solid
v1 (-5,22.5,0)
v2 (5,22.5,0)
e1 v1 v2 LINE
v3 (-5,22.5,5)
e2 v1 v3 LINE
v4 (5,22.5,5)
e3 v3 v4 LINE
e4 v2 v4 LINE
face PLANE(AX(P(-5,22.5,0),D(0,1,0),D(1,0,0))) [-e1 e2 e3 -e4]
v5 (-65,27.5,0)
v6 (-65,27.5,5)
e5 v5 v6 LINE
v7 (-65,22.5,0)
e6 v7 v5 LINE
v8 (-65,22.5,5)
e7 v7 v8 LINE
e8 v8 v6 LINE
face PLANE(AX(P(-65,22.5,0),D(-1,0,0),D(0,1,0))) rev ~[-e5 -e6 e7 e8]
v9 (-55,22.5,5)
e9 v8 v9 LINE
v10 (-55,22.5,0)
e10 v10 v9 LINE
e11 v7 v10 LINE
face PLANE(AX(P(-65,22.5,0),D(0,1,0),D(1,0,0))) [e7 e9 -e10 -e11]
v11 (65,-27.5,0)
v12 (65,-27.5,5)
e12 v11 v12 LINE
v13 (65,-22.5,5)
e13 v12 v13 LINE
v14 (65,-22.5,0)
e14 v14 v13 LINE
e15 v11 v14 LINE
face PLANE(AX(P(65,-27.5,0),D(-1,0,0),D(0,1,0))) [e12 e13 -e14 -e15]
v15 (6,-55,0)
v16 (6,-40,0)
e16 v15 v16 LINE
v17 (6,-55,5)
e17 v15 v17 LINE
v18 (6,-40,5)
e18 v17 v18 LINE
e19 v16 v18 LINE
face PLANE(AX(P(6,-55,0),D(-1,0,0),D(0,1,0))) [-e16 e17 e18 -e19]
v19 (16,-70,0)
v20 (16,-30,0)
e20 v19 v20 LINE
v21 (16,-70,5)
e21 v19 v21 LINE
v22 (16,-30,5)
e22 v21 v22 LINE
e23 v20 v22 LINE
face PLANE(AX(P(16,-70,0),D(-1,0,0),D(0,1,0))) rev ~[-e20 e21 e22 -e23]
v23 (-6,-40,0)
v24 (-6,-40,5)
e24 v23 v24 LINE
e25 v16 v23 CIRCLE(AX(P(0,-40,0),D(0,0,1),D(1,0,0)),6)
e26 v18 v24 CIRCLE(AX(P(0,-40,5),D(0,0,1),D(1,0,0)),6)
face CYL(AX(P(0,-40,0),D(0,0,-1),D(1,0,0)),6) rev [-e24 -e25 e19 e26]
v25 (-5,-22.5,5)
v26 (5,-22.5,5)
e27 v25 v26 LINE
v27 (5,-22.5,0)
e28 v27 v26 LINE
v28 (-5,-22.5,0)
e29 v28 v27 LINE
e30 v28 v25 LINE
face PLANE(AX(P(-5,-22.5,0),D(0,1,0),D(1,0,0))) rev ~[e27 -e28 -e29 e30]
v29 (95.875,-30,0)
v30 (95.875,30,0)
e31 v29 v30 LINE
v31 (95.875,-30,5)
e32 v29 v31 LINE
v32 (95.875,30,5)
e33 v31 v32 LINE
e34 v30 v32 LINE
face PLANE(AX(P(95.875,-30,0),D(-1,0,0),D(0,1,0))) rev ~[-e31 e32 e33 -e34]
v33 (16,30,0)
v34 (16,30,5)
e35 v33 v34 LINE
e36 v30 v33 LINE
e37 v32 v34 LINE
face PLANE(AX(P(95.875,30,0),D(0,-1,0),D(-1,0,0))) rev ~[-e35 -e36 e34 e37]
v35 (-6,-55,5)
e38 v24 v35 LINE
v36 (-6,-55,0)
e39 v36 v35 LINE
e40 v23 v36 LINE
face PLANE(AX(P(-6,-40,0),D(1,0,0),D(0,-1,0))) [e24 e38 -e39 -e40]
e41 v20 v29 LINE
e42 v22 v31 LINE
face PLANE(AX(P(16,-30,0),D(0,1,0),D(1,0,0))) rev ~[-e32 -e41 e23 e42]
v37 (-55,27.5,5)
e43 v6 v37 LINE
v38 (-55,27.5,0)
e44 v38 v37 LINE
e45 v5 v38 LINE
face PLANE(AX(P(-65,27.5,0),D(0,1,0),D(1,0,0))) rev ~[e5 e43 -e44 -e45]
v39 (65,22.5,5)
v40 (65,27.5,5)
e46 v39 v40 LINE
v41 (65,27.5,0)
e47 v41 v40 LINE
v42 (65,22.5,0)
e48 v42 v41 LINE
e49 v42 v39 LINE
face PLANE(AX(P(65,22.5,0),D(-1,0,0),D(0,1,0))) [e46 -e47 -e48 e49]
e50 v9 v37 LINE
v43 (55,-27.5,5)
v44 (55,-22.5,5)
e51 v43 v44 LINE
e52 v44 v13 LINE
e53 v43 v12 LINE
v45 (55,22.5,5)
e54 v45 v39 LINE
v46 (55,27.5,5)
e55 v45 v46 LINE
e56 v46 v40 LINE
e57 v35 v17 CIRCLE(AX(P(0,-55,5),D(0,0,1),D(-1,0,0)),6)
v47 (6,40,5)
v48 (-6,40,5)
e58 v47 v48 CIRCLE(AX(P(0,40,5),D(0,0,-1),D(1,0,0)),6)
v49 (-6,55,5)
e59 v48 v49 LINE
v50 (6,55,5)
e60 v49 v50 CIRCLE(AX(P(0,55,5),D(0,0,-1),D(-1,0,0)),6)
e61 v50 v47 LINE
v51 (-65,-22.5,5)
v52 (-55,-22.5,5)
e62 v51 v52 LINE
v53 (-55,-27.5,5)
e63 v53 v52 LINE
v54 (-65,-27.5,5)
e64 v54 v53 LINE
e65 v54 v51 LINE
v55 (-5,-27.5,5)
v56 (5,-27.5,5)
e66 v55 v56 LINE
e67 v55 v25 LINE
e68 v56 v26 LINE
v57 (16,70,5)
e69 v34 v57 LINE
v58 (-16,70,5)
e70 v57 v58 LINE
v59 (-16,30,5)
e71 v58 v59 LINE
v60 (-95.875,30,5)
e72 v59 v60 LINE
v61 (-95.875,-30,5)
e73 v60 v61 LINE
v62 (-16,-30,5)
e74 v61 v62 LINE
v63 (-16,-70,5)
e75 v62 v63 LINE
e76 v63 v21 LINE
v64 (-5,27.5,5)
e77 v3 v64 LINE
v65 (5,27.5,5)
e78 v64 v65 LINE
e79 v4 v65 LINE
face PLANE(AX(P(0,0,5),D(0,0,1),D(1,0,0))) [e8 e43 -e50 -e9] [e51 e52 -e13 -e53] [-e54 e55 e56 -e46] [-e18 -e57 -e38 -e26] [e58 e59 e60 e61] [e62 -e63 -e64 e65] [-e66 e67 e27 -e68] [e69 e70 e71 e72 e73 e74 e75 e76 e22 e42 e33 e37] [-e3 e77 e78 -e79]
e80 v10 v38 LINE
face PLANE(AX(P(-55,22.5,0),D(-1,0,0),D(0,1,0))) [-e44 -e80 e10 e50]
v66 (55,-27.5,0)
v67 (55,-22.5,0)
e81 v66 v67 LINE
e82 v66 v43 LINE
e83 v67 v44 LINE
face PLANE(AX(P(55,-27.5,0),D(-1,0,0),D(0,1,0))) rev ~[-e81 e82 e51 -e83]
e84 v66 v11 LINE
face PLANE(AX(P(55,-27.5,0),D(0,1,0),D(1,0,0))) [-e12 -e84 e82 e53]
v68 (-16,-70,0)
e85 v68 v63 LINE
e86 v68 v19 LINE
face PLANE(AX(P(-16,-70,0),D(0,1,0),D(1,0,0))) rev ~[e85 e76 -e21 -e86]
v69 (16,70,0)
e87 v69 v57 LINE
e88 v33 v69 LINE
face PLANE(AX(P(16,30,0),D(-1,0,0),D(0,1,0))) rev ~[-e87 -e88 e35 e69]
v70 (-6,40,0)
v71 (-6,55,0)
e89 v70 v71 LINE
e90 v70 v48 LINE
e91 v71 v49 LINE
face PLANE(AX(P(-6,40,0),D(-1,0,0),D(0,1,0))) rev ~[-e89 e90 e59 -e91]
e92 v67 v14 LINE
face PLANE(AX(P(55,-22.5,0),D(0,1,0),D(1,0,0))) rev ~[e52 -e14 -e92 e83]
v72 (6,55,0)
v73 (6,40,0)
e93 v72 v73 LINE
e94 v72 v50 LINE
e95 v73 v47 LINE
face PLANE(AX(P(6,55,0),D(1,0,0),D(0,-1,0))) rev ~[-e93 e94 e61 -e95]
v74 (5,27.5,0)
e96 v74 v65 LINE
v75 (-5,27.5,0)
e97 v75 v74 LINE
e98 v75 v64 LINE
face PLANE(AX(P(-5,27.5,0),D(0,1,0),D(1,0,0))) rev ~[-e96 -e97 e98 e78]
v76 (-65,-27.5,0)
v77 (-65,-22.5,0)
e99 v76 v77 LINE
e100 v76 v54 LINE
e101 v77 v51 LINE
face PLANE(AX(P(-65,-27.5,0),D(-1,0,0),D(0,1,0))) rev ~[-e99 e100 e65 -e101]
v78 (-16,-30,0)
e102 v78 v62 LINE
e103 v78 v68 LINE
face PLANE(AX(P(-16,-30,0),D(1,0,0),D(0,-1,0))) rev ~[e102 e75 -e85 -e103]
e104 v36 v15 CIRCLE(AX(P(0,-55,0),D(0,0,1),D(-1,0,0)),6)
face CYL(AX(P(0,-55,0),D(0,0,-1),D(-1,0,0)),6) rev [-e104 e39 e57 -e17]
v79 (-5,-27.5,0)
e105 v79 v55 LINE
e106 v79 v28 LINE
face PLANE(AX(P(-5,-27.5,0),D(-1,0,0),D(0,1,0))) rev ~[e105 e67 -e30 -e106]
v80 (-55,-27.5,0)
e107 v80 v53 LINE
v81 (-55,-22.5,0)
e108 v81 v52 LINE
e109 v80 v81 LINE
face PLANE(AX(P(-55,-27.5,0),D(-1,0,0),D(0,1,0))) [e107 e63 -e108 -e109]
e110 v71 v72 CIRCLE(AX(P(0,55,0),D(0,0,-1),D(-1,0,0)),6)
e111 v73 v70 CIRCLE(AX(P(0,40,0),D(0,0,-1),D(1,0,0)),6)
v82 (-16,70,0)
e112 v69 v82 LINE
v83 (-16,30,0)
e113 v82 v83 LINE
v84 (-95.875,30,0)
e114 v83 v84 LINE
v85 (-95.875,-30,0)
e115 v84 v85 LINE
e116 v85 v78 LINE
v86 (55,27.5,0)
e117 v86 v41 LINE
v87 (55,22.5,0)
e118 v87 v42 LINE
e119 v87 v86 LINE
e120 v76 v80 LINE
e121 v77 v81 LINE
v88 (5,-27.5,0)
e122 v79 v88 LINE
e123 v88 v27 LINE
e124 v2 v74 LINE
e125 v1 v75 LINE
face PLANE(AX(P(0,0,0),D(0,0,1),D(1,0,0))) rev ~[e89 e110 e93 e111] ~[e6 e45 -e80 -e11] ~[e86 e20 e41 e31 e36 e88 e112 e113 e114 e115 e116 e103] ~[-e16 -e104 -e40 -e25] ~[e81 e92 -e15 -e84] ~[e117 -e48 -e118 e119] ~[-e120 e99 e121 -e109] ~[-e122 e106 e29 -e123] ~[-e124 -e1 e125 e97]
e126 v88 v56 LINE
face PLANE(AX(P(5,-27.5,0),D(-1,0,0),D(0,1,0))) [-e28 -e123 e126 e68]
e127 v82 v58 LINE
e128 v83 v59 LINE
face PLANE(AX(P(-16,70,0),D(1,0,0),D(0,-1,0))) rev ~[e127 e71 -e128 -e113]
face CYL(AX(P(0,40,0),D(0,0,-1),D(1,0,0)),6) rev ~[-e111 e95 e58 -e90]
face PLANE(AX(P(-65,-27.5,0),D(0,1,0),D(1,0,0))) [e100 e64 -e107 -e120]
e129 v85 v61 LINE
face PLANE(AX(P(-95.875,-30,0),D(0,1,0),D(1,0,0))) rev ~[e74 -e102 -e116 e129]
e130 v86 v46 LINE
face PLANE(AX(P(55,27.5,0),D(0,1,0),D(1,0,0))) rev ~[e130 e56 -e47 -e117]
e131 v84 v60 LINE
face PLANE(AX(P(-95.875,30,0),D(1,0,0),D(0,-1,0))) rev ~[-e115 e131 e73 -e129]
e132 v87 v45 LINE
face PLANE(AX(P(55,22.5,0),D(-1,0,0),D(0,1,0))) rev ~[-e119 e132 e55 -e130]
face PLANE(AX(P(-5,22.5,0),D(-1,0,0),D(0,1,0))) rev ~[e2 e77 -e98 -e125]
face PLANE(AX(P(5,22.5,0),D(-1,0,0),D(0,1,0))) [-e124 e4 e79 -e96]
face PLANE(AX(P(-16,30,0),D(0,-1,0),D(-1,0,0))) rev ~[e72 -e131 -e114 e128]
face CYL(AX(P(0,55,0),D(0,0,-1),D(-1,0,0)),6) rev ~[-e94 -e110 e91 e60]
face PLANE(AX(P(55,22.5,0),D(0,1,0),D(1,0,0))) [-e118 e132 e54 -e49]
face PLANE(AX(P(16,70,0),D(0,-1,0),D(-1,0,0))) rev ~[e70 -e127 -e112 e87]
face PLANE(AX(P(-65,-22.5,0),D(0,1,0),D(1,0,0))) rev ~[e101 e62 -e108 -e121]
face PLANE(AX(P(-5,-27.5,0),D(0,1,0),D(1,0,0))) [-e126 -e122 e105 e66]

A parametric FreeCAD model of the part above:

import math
import FreeCAD as App
import Part
import Sketcher

doc = App.newDocument("Part")
params = doc.addObject("Spreadsheet::Sheet", "Params")
for row, (alias, value) in enumerate([
    ("sketch1_radius", "6 mm"),
    ("sketch1_width", "32 mm"),
    ("sketch1_width2", "10 mm"),
    ("sketch1_height", "40 mm"),
    ("sketch1_height2", "60 mm"),
    ("pad1_length", "5 mm"),
], start=1):
    params.set(f"A{row}", alias)
    params.set(f"B{row}", "=" + value)
    params.setAlias(f"B{row}", alias)

body = doc.addObject("PartDesign::Body", "Body")

sketch1 = body.newObject("Sketcher::SketchObject", "Sketch")
sketch1.AttachmentSupport = (doc.getObject("XY_Plane"), [""])
sketch1.MapMode = "FlatFace"
sketch1.addGeometry([
    Part.LineSegment(App.Vector(-16, -70, 0), App.Vector(16, -70, 0)),
    Part.LineSegment(App.Vector(16, -70, 0), App.Vector(16, -30, 0)),
    Part.LineSegment(App.Vector(16, -30, 0), App.Vector(96, -30, 0)),
    Part.LineSegment(App.Vector(96, -30, 0), App.Vector(96, 30, 0)),
    Part.LineSegment(App.Vector(96, 30, 0), App.Vector(16, 30, 0)),
    Part.LineSegment(App.Vector(16, 30, 0), App.Vector(16, 70, 0)),
    Part.LineSegment(App.Vector(16, 70, 0), App.Vector(-16, 70, 0)),
    Part.LineSegment(App.Vector(-16, 70, 0), App.Vector(-16, 30, 0)),
    Part.LineSegment(App.Vector(-16, 30, 0), App.Vector(-96, 30, 0)),
    Part.LineSegment(App.Vector(-96, 30, 0), App.Vector(-96, -30, 0)),
    Part.LineSegment(App.Vector(-96, -30, 0), App.Vector(-16, -30, 0)),
    Part.LineSegment(App.Vector(-16, -30, 0), App.Vector(-16, -70, 0)),
    Part.LineSegment(App.Vector(-55, -28, 0), App.Vector(-65, -28, 0)),
    Part.LineSegment(App.Vector(-65, -28, 0), App.Vector(-65, -22, 0)),
    Part.LineSegment(App.Vector(-65, -22, 0), App.Vector(-55, -22, 0)),
    Part.LineSegment(App.Vector(-55, -22, 0), App.Vector(-55, -28, 0)),
    Part.LineSegment(App.Vector(-6, -55, 0), App.Vector(-6, -40, 0)),
    Part.ArcOfCircle(Part.Circle(App.Vector(0, -40, 0), App.Vector(0, 0, 1), 6), math.radians(0), math.radians(180)),
    Part.LineSegment(App.Vector(6, -40, 0), App.Vector(6, -55, 0)),
    Part.ArcOfCircle(Part.Circle(App.Vector(0, -55, 0), App.Vector(0, 0, 1), 6), math.radians(180), math.radians(360)),
    Part.LineSegment(App.Vector(5, -28, 0), App.Vector(-5, -28, 0)),
    Part.LineSegment(App.Vector(-5, -28, 0), App.Vector(-5, -22, 0)),
    Part.LineSegment(App.Vector(-5, -22, 0), App.Vector(5, -22, 0)),
    Part.LineSegment(App.Vector(5, -22, 0), App.Vector(5, -28, 0)),
    Part.LineSegment(App.Vector(65, -28, 0), App.Vector(55, -28, 0)),
    Part.LineSegment(App.Vector(55, -28, 0), App.Vector(55, -22, 0)),
    Part.LineSegment(App.Vector(55, -22, 0), App.Vector(65, -22, 0)),
    Part.LineSegment(App.Vector(65, -22, 0), App.Vector(65, -28, 0)),
    Part.LineSegment(App.Vector(-55, 22, 0), App.Vector(-65, 22, 0)),
    Part.LineSegment(App.Vector(-65, 22, 0), App.Vector(-65, 28, 0)),
    Part.LineSegment(App.Vector(-65, 28, 0), App.Vector(-55, 28, 0)),
    Part.LineSegment(App.Vector(-55, 28, 0), App.Vector(-55, 22, 0)),
    Part.LineSegment(App.Vector(5, 22, 0), App.Vector(-5, 22, 0)),
    Part.LineSegment(App.Vector(-5, 22, 0), App.Vector(-5, 28, 0)),
    Part.LineSegment(App.Vector(-5, 28, 0), App.Vector(5, 28, 0)),
    Part.LineSegment(App.Vector(5, 28, 0), App.Vector(5, 22, 0)),
    Part.LineSegment(App.Vector(65, 22, 0), App.Vector(55, 22, 0)),
    Part.LineSegment(App.Vector(55, 22, 0), App.Vector(55, 28, 0)),
    Part.LineSegment(App.Vector(55, 28, 0), App.Vector(65, 28, 0)),
    Part.LineSegment(App.Vector(65, 28, 0), App.Vector(65, 22, 0)),
    Part.ArcOfCircle(Part.Circle(App.Vector(0, 55, 0), App.Vector(0, 0, 1), 6), math.radians(0), math.radians(180)),
    Part.LineSegment(App.Vector(6, 55, 0), App.Vector(6, 40, 0)),
    Part.ArcOfCircle(Part.Circle(App.Vector(0, 40, 0), App.Vector(0, 0, 1), 6), math.radians(180), math.radians(360)),
    Part.LineSegment(App.Vector(-6, 40, 0), App.Vector(-6, 55, 0)),
], False)
sketch1.addConstraint([
    Sketcher.Constraint("Coincident", 0, 2, 1, 1),
    Sketcher.Constraint("Coincident", 1, 2, 2, 1),
    Sketcher.Constraint("Coincident", 2, 2, 3, 1),
    Sketcher.Constraint("Coincident", 3, 2, 4, 1),
    Sketcher.Constraint("Coincident", 4, 2, 5, 1),
    Sketcher.Constraint("Coincident", 5, 2, 6, 1),
    Sketcher.Constraint("Coincident", 6, 2, 7, 1),
    Sketcher.Constraint("Coincident", 7, 2, 8, 1),
    Sketcher.Constraint("Coincident", 8, 2, 9, 1),
    Sketcher.Constraint("Coincident", 9, 2, 10, 1),
    Sketcher.Constraint("Coincident", 10, 2, 11, 1),
    Sketcher.Constraint("Coincident", 11, 2, 0, 1),
    Sketcher.Constraint("Coincident", 12, 2, 13, 1),
    Sketcher.Constraint("Coincident", 13, 2, 14, 1),
    Sketcher.Constraint("Coincident", 14, 2, 15, 1),
    Sketcher.Constraint("Coincident", 15, 2, 12, 1),
    Sketcher.Constraint("Tangent", 16, 2, 17, 2),
    Sketcher.Constraint("Tangent", 17, 1, 18, 1),
    Sketcher.Constraint("Tangent", 18, 2, 19, 2),
    Sketcher.Constraint("Tangent", 19, 1, 16, 1),
    Sketcher.Constraint("Coincident", 20, 2, 21, 1),
    Sketcher.Constraint("Coincident", 21, 2, 22, 1),
    Sketcher.Constraint("Coincident", 22, 2, 23, 1),
    Sketcher.Constraint("Coincident", 23, 2, 20, 1),
    Sketcher.Constraint("Coincident", 24, 2, 25, 1),
    Sketcher.Constraint("Coincident", 25, 2, 26, 1),
    Sketcher.Constraint("Coincident", 26, 2, 27, 1),
    Sketcher.Constraint("Coincident", 27, 2, 24, 1),
    Sketcher.Constraint("Coincident", 28, 2, 29, 1),
    Sketcher.Constraint("Coincident", 29, 2, 30, 1),
    Sketcher.Constraint("Coincident", 30, 2, 31, 1),
    Sketcher.Constraint("Coincident", 31, 2, 28, 1),
    Sketcher.Constraint("Coincident", 32, 2, 33, 1),
    Sketcher.Constraint("Coincident", 33, 2, 34, 1),
    Sketcher.Constraint("Coincident", 34, 2, 35, 1),
    Sketcher.Constraint("Coincident", 35, 2, 32, 1),
    Sketcher.Constraint("Coincident", 36, 2, 37, 1),
    Sketcher.Constraint("Coincident", 37, 2, 38, 1),
    Sketcher.Constraint("Coincident", 38, 2, 39, 1),
    Sketcher.Constraint("Coincident", 39, 2, 36, 1),
    Sketcher.Constraint("Tangent", 40, 1, 41, 1),
    Sketcher.Constraint("Tangent", 41, 2, 42, 2),
    Sketcher.Constraint("Tangent", 42, 1, 43, 1),
    Sketcher.Constraint("Tangent", 43, 2, 40, 2),
    Sketcher.Constraint("Horizontal", 0),
    Sketcher.Constraint("Vertical", 1),
    Sketcher.Constraint("Horizontal", 2),
    Sketcher.Constraint("Vertical", 3),
    Sketcher.Constraint("Horizontal", 4),
    Sketcher.Constraint("Vertical", 5),
    Sketcher.Constraint("Horizontal", 6),
    Sketcher.Constraint("Vertical", 7),
    Sketcher.Constraint("Horizontal", 8),
    Sketcher.Constraint("Vertical", 9),
    Sketcher.Constraint("Horizontal", 10),
    Sketcher.Constraint("Vertical", 11),
    Sketcher.Constraint("Horizontal", 12),
    Sketcher.Constraint("Vertical", 13),
    Sketcher.Constraint("Horizontal", 14),
    Sketcher.Constraint("Vertical", 15),
    Sketcher.Constraint("Vertical", 16),
    Sketcher.Constraint("Vertical", 18),
    Sketcher.Constraint("Horizontal", 20),
    Sketcher.Constraint("Vertical", 21),
    Sketcher.Constraint("Horizontal", 22),
    Sketcher.Constraint("Vertical", 23),
    Sketcher.Constraint("Horizontal", 24),
    Sketcher.Constraint("Vertical", 25),
    Sketcher.Constraint("Horizontal", 26),
    Sketcher.Constraint("Vertical", 27),
    Sketcher.Constraint("Horizontal", 28),
    Sketcher.Constraint("Vertical", 29),
    Sketcher.Constraint("Horizontal", 30),
    Sketcher.Constraint("Vertical", 31),
    Sketcher.Constraint("Horizontal", 32),
    Sketcher.Constraint("Vertical", 33),
    Sketcher.Constraint("Horizontal", 34),
    Sketcher.Constraint("Vertical", 35),
    Sketcher.Constraint("Horizontal", 36),
    Sketcher.Constraint("Vertical", 37),
    Sketcher.Constraint("Horizontal", 38),
    Sketcher.Constraint("Vertical", 39),
    Sketcher.Constraint("Vertical", 41),
    Sketcher.Constraint("Vertical", 43),
    Sketcher.Constraint("Equal", 19, 40),
    Sketcher.Constraint("Symmetric", 19, 3, 40, 3, -1, 1),
    Sketcher.Constraint("Symmetric", 0, 2, 6, 2, -1, 1),
    Sketcher.Constraint("Symmetric", 2, 2, 8, 2, -1, 1),
    Sketcher.Constraint("Symmetric", 4, 2, 10, 2, -1, 1),
    Sketcher.Constraint("Symmetric", 26, 2, 28, 2, -1, 1),
    Sketcher.Constraint("Symmetric", 24, 2, 30, 2, -1, 1),
    Sketcher.Constraint("Symmetric", 22, 2, 32, 2, -1, 1),
    Sketcher.Constraint("Symmetric", 20, 2, 34, 2, -1, 1),
    Sketcher.Constraint("Symmetric", 14, 2, 36, 2, -1, 1),
    Sketcher.Constraint("Symmetric", 12, 2, 38, 2, -1, 1),
    Sketcher.Constraint("Symmetric", 4, 2, 7, 2, -2),
    Sketcher.Constraint("Symmetric", 15, 2, 24, 2, -2),
    Sketcher.Constraint("Symmetric", 13, 2, 26, 2, -2),
    Sketcher.Constraint("Symmetric", 17, 3, 42, 3, -1),
    Sketcher.Constraint("Horizontal", 15, 2, 20, 2),
    Sketcher.Constraint("Horizontal", 14, 2, 21, 2),
    Sketcher.Constraint("Vertical", 21, 2, 32, 2),
    Sketcher.Constraint("Equal", 14, 20),
    Sketcher.Constraint("Radius", 17, 6.0),
    Sketcher.Constraint("DistanceX", 0, 1, 0, 2, 32.0),
    Sketcher.Constraint("DistanceX", 12, 2, 12, 1, 10.0),
    Sketcher.Constraint("DistanceY", 1, 1, 1, 2, 40.0),
    Sketcher.Constraint("DistanceY", 3, 1, 3, 2, 60.0),
    Sketcher.Constraint("DistanceY", 13, 1, 13, 2, 5.0),
    Sketcher.Constraint("DistanceY", 16, 1, 16, 2, 15.0),
    Sketcher.Constraint("DistanceY", 17, 3, -1, 1, 40.0),
    Sketcher.Constraint("DistanceX", 12, 2, -1, 1, 65.0),
    Sketcher.Constraint("DistanceY", 13, 2, 28, 2, 45.0),
    Sketcher.Constraint("DistanceX", 2, 1, 2, 2, 79.875),
])
sketch1.setExpression("Constraints[103]", "Params.sketch1_radius")
sketch1.setExpression("Constraints[104]", "Params.sketch1_width")
sketch1.setExpression("Constraints[105]", "Params.sketch1_width2")
sketch1.setExpression("Constraints[106]", "Params.sketch1_height")
sketch1.setExpression("Constraints[107]", "Params.sketch1_height2")
pad1 = body.newObject("PartDesign::Pad", "Pad")
pad1.Profile = sketch1
pad1.setExpression("Length", "Params.pad1_length")

doc.recompute()
